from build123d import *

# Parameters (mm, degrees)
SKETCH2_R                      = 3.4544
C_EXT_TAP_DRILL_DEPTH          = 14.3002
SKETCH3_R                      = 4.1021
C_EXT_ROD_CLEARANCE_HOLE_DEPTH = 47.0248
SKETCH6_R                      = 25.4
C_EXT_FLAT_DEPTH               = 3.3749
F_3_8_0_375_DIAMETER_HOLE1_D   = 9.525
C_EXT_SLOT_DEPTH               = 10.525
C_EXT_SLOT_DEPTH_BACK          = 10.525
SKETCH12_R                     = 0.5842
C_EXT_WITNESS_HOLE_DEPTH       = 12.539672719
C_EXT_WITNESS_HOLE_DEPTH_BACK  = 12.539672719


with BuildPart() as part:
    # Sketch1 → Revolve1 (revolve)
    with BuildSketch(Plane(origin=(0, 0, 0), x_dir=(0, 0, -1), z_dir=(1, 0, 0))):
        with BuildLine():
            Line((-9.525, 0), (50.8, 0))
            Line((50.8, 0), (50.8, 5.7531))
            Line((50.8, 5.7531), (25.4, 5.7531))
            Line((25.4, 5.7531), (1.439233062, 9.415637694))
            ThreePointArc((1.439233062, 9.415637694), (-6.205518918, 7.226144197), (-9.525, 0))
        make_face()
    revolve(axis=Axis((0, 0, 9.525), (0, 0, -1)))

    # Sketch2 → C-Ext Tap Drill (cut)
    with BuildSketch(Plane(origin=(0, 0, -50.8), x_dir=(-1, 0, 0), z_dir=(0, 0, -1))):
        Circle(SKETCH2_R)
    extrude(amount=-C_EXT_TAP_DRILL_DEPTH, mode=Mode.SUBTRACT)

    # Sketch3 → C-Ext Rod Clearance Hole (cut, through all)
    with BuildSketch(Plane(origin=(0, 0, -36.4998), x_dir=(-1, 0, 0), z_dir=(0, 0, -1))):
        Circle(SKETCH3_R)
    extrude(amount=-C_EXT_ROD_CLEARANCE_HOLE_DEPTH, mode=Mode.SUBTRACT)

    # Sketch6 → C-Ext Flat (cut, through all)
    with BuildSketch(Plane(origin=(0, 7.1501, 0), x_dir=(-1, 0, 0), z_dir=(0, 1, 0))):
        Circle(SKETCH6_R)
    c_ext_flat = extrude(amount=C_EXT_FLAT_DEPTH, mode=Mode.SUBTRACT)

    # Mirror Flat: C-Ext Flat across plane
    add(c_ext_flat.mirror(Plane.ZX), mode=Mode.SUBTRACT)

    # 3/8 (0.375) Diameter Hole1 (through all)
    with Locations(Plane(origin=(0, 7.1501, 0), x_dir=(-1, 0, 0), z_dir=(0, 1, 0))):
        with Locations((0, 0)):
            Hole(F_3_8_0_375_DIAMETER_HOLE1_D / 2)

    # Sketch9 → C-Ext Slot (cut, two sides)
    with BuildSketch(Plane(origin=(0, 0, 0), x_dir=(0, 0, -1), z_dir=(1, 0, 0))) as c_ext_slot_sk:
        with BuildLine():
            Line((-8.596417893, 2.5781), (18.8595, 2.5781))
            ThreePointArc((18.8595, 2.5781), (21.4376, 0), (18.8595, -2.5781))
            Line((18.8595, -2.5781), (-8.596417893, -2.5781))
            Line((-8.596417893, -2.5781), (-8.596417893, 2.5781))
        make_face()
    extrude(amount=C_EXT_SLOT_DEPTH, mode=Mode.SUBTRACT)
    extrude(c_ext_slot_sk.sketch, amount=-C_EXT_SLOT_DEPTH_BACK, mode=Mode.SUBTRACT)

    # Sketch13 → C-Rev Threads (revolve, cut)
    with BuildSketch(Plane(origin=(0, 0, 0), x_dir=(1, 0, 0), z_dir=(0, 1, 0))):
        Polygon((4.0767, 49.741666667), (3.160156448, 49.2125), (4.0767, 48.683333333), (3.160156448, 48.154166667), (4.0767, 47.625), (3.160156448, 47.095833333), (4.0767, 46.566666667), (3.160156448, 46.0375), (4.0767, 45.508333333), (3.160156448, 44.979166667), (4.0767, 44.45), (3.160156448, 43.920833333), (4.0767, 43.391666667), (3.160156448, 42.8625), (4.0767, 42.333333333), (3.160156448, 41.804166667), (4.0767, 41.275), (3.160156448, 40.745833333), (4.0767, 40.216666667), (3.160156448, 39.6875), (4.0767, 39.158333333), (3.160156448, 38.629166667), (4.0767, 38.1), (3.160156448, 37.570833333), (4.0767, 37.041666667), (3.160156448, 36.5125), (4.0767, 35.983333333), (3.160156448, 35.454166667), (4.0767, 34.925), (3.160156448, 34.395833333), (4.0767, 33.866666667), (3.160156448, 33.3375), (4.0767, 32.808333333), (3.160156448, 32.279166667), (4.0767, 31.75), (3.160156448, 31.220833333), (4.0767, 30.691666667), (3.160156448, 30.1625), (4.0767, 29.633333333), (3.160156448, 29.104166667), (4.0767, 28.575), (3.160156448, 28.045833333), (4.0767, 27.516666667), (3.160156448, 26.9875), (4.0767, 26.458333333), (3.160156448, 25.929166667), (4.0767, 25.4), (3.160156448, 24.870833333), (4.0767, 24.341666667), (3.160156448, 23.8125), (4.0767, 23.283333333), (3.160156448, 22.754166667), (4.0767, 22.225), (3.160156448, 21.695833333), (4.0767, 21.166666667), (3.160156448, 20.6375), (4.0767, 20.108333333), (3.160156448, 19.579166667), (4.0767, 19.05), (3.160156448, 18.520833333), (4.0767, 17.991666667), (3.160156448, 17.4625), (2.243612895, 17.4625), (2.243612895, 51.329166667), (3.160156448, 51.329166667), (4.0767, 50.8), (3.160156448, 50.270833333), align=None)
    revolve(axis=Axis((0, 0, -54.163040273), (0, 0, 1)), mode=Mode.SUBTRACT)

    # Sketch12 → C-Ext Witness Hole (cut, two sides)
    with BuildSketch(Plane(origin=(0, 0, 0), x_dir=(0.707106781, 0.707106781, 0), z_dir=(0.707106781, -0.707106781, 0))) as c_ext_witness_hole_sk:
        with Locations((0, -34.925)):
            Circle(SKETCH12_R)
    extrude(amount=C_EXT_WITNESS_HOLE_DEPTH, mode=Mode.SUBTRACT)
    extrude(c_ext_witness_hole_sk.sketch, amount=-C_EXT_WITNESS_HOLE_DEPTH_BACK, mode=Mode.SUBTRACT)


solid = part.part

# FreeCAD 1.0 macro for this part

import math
import FreeCAD as App
import Part
import Sketcher

V = App.Vector
Q = App.Units.Quantity


def add_polygon(sketch, points):
    """Adds a closed chain of lines whose ends are joined by coincident constraints."""
    first, n = sketch.GeometryCount, len(points)
    for a, b in zip(points, points[1:] + points[:1]):
        sketch.addGeometry(Part.LineSegment(App.Vector(*a, 0), App.Vector(*b, 0)), False)
    for i in range(n):
        sketch.addConstraint(Sketcher.Constraint("Coincident", first + i, 2, first + (i + 1) % n, 1))

doc = App.newDocument("Part")
body = doc.addObject("PartDesign::Body", "Body")

sketch1 = doc.addObject("Sketcher::SketchObject", "Sketch")
body.addObject(sketch1)
sketch1.AttachmentSupport = (doc.YZ_Plane, [""])
sketch1.MapMode = "FlatFace"
sketch1.addGeometry([
    Part.LineSegment(V(0, 9.525, 0), V(0, -50.8, 0)),
    Part.LineSegment(V(0, -50.8, 0), V(5.7531, -50.8, 0)),
    Part.LineSegment(V(5.7531, -50.8, 0), V(5.7531, -25.4, 0)),
    Part.LineSegment(V(5.7531, -25.4, 0), V(9.415638, -1.439233, 0)),
    Part.ArcOfCircle(Part.Circle(V(0, 0, 0), V(0, 0, 1), 9.525), math.radians(-8.690712), math.radians(90)),
], False)
sketch1.addConstraint([
    Sketcher.Constraint("Coincident", 0, 2, 1, 1),
    Sketcher.Constraint("Coincident", 1, 2, 2, 1),
    Sketcher.Constraint("Coincident", 2, 2, 3, 1),
    Sketcher.Constraint("Tangent", 3, 2, 4, 1),
    Sketcher.Constraint("Coincident", 4, 2, 0, 1),
    Sketcher.Constraint("Vertical", 0),
    Sketcher.Constraint("Horizontal", 1),
    Sketcher.Constraint("Vertical", 2),
    Sketcher.Constraint("Coincident", 4, 3, -1, 1),
    Sketcher.Constraint("PointOnObject", 0, 2, -2),
    Sketcher.Constraint("DistanceY", 2, 1, 2, 2, Q("1 in")),
    Sketcher.Constraint("DistanceY", 0, 2, -1, 1, Q("2 in")),
    Sketcher.Constraint("Radius", 4, Q("0.375 in")),
    Sketcher.Constraint("DistanceX", 1, 1, 1, 2, Q("0.2265 in")),
])
revolution = doc.addObject("PartDesign::Revolution", "Revolution")
body.addObject(revolution)
revolution.Profile = sketch1
revolution.ReferenceAxis = (sketch1, ["V_Axis"])
revolution.Angle = 360

sketch2 = doc.addObject("Sketcher::SketchObject", "Sketch001")
body.addObject(sketch2)
sketch2.AttachmentSupport = (doc.XY_Plane, [""])
sketch2.MapMode = "FlatFace"
sketch2.AttachmentOffset = App.Placement(V(0, 0, -2 * 25.4), App.Rotation())
sketch2.addGeometry(Part.Circle(V(0, 0, 0), V(0, 0, 1), 3.4544), False)
sketch2.addConstraint([
    Sketcher.Constraint("Coincident", 0, 3, -1, 1),
    Sketcher.Constraint("Diameter", 0, Q("0.272 in")),
])
pocket1 = doc.addObject("PartDesign::Pocket", "Pocket")
body.addObject(pocket1)
pocket1.Profile = sketch2
pocket1.Length = Q("0.563 in")
pocket1.Reversed = True

sketch3 = doc.addObject("Sketcher::SketchObject", "Sketch002")
body.addObject(sketch3)
sketch3.AttachmentSupport = (doc.XY_Plane, [""])
sketch3.MapMode = "FlatFace"
sketch3.AttachmentOffset = App.Placement(V(0, 0, -1.437 * 25.4), App.Rotation())
sketch3.addGeometry(Part.Circle(V(0, 0, 0), V(0, 0, 1), 4.1021), False)
sketch3.addConstraint([
    Sketcher.Constraint("Coincident", 0, 3, -1, 1),
    Sketcher.Constraint("Diameter", 0, Q("0.323 in")),
])
pocket2 = doc.addObject("PartDesign::Pocket", "Pocket001")
body.addObject(pocket2)
pocket2.Profile = sketch3
pocket2.Type = "ThroughAll"
pocket2.Reversed = True

sketch4 = doc.addObject("Sketcher::SketchObject", "Sketch003")
body.addObject(sketch4)
sketch4.AttachmentSupport = (doc.XZ_Plane, [""])
sketch4.MapMode = "FlatFace"
sketch4.AttachmentOffset = App.Placement(V(0, 0, -0.2815 * 25.4), App.Rotation())
sketch4.addGeometry(Part.Circle(V(0, 0, 0), V(0, 0, 1), 25.4), False)
sketch4.addConstraint([
    Sketcher.Constraint("Coincident", 0, 3, -1, 1),
    Sketcher.Constraint("Diameter", 0, Q("2 in")),
])
pocket3 = doc.addObject("PartDesign::Pocket", "Pocket002")
body.addObject(pocket3)
pocket3.Profile = sketch4
pocket3.Type = "ThroughAll"
doc.recompute()

mirrored = doc.addObject("PartDesign::Mirrored", "Mirrored")
body.addObject(mirrored)
mirrored.Originals = [pocket3]
mirrored.MirrorPlane = (doc.XZ_Plane, [""])
body.Tip = mirrored

sketch5 = doc.addObject("Sketcher::SketchObject", "Sketch004")
body.addObject(sketch5)
sketch5.AttachmentSupport = (doc.XZ_Plane, [""])
sketch5.MapMode = "FlatFace"
sketch5.AttachmentOffset = App.Placement(V(0, 0, -0.2815 * 25.4), App.Rotation())
sketch5.addGeometry(Part.Circle(V(0, 0, 0), V(0, 0, 1), 4.7625), False)
sketch5.addConstraint([
    Sketcher.Constraint("Coincident", 0, 3, -1, 1),
    Sketcher.Constraint("Diameter", 0, Q("0.375 in")),
])
doc.recompute()
hole = doc.addObject("PartDesign::Hole", "Hole")
body.addObject(hole)
hole.Profile = sketch5
hole.ThreadType = "None"
hole.Diameter = Q("0.375 in")
hole.DepthType = "ThroughAll"
hole.Reversed = True

sketch6 = doc.addObject("Sketcher::SketchObject", "Sketch005")
body.addObject(sketch6)
sketch6.AttachmentSupport = (doc.YZ_Plane, [""])
sketch6.MapMode = "FlatFace"
sketch6.addGeometry([
    Part.LineSegment(V(2.5781, -18.8595, 0), V(2.5781, 8.596418, 0)),
    Part.LineSegment(V(2.5781, 8.596418, 0), V(-2.5781, 8.596418, 0)),
    Part.LineSegment(V(-2.5781, 8.596418, 0), V(-2.5781, -18.8595, 0)),
    Part.ArcOfCircle(Part.Circle(V(0, -18.8595, 0), V(0, 0, 1), 2.5781), math.radians(180), math.radians(360)),
], False)
sketch6.addConstraint([
    Sketcher.Constraint("Coincident", 0, 2, 1, 1),
    Sketcher.Constraint("Coincident", 1, 2, 2, 1),
    Sketcher.Constraint("Tangent", 2, 2, 3, 1),
    Sketcher.Constraint("Tangent", 3, 2, 0, 1),
    Sketcher.Constraint("Vertical", 0),
    Sketcher.Constraint("Horizontal", 1),
    Sketcher.Constraint("Vertical", 2),
    Sketcher.Constraint("PointOnObject", 3, 3, -2),
    Sketcher.Constraint("Radius", 3, Q("0.1015 in")),
    Sketcher.Constraint("DistanceY", 3, 3, -1, 1, Q("0.7425 in")),
    Sketcher.Constraint("DistanceY", 0, 1, 0, 2, Q("27.455918 mm")),
])
pocket4 = doc.addObject("PartDesign::Pocket", "Pocket003")
body.addObject(pocket4)
pocket4.Profile = sketch6
pocket4.Type = "ThroughAll"
pocket4.Midplane = True

sketch7 = doc.addObject("Sketcher::SketchObject", "Sketch006")
body.addObject(sketch7)
sketch7.AttachmentSupport = (doc.XZ_Plane, [""])
sketch7.MapMode = "FlatFace"
add_polygon(sketch7, [(3.160156, -49.2125), (4.0767, -49.741667), (3.160156, -50.270833), (4.0767, -50.8), (3.160156, -51.329167), (2.243613, -51.329167), (2.243613, -17.4625), (3.160156, -17.4625), (4.0767, -17.991667), (3.160156, -18.520833), (4.0767, -19.05), (3.160156, -19.579167), (4.0767, -20.108333), (3.160156, -20.6375), (4.0767, -21.166667), (3.160156, -21.695833), (4.0767, -22.225), (3.160156, -22.754167), (4.0767, -23.283333), (3.160156, -23.8125), (4.0767, -24.341667), (3.160156, -24.870833), (4.0767, -25.4), (3.160156, -25.929167), (4.0767, -26.458333), (3.160156, -26.9875), (4.0767, -27.516667), (3.160156, -28.045833), (4.0767, -28.575), (3.160156, -29.104167), (4.0767, -29.633333), (3.160156, -30.1625), (4.0767, -30.691667), (3.160156, -31.220833), (4.0767, -31.75), (3.160156, -32.279167), (4.0767, -32.808333), (3.160156, -33.3375), (4.0767, -33.866667), (3.160156, -34.395833), (4.0767, -34.925), (3.160156, -35.454167), (4.0767, -35.983333), (3.160156, -36.5125), (4.0767, -37.041667), (3.160156, -37.570833), (4.0767, -38.1), (3.160156, -38.629167), (4.0767, -39.158333), (3.160156, -39.6875), (4.0767, -40.216667), (3.160156, -40.745833), (4.0767, -41.275), (3.160156, -41.804167), (4.0767, -42.333333), (3.160156, -42.8625), (4.0767, -43.391667), (3.160156, -43.920833), (4.0767, -44.45), (3.160156, -44.979167), (4.0767, -45.508333), (3.160156, -46.0375), (4.0767, -46.566667), (3.160156, -47.095833), (4.0767, -47.625), (3.160156, -48.154167), (4.0767, -48.683333)])
sketch7.addConstraint([
    Sketcher.Constraint("Horizontal", 4),
    Sketcher.Constraint("Vertical", 5),
    Sketcher.Constraint("Horizontal", 6),
    Sketcher.Constraint("Parallel", 0, 2),
    Sketcher.Constraint("Parallel", 1, 3),
    Sketcher.Constraint("Parallel", 2, 7),
    Sketcher.Constraint("Parallel", 3, 8),
    Sketcher.Constraint("Parallel", 7, 9),
    Sketcher.Constraint("Parallel", 8, 10),
    Sketcher.Constraint("Parallel", 9, 11),
    Sketcher.Constraint("Parallel", 10, 12),
    Sketcher.Constraint("Parallel", 11, 13),
    Sketcher.Constraint("Parallel", 12, 14),
    Sketcher.Constraint("Parallel", 13, 15),
    Sketcher.Constraint("Parallel", 14, 16),
    Sketcher.Constraint("Parallel", 15, 17),
    Sketcher.Constraint("Parallel", 16, 18),
    Sketcher.Constraint("Parallel", 17, 19),
    Sketcher.Constraint("Parallel", 18, 20),
    Sketcher.Constraint("Parallel", 19, 21),
    Sketcher.Constraint("Parallel", 20, 22),
    Sketcher.Constraint("Parallel", 21, 23),
    Sketcher.Constraint("Parallel", 22, 24),
    Sketcher.Constraint("Parallel", 23, 25),
    Sketcher.Constraint("Parallel", 24, 26),
    Sketcher.Constraint("Parallel", 25, 27),
    Sketcher.Constraint("Parallel", 26, 28),
    Sketcher.Constraint("Parallel", 27, 29),
    Sketcher.Constraint("Parallel", 28, 30),
    Sketcher.Constraint("Parallel", 29, 31),
    Sketcher.Constraint("Parallel", 30, 32),
    Sketcher.Constraint("Parallel", 31, 33),
    Sketcher.Constraint("Parallel", 32, 34),
    Sketcher.Constraint("Parallel", 33, 35),
    Sketcher.Constraint("Parallel", 34, 36),
    Sketcher.Constraint("Parallel", 35, 37),
    Sketcher.Constraint("Parallel", 36, 38),
    Sketcher.Constraint("Parallel", 37, 39),
    Sketcher.Constraint("Parallel", 38, 40),
    Sketcher.Constraint("Parallel", 39, 41),
    Sketcher.Constraint("Parallel", 40, 42),
    Sketcher.Constraint("Parallel", 41, 43),
    Sketcher.Constraint("Parallel", 42, 44),
    Sketcher.Constraint("Parallel", 43, 45),
    Sketcher.Constraint("Parallel", 44, 46),
    Sketcher.Constraint("Parallel", 45, 47),
    Sketcher.Constraint("Parallel", 46, 48),
    Sketcher.Constraint("Parallel", 47, 49),
    Sketcher.Constraint("Parallel", 48, 50),
    Sketcher.Constraint("Parallel", 49, 51),
    Sketcher.Constraint("Parallel", 50, 52),
    Sketcher.Constraint("Parallel", 51, 53),
    Sketcher.Constraint("Parallel", 52, 54),
    Sketcher.Constraint("Parallel", 53, 55),
    Sketcher.Constraint("Parallel", 54, 56),
    Sketcher.Constraint("Parallel", 55, 57),
    Sketcher.Constraint("Parallel", 56, 58),
    Sketcher.Constraint("Parallel", 57, 59),
    Sketcher.Constraint("Parallel", 58, 60),
    Sketcher.Constraint("Parallel", 59, 61),
    Sketcher.Constraint("Parallel", 60, 62),
    Sketcher.Constraint("Parallel", 61, 63),
    Sketcher.Constraint("Parallel", 62, 64),
    Sketcher.Constraint("Parallel", 63, 65),
    Sketcher.Constraint("Parallel", 64, 66),
    Sketcher.Constraint("Vertical", 0, 2, 2, 2),
    Sketcher.Constraint("Vertical", 1, 2, 3, 2),
    Sketcher.Constraint("Vertical", 3, 2, 6, 2),
    Sketcher.Constraint("Vertical", 2, 2, 7, 2),
    Sketcher.Constraint("Vertical", 6, 2, 8, 2),
    Sketcher.Constraint("Vertical", 7, 2, 9, 2),
    Sketcher.Constraint("Vertical", 8, 2, 10, 2),
    Sketcher.Constraint("Vertical", 9, 2, 11, 2),
    Sketcher.Constraint("Vertical", 10, 2, 12, 2),
    Sketcher.Constraint("Vertical", 11, 2, 13, 2),
    Sketcher.Constraint("Vertical", 12, 2, 14, 2),
    Sketcher.Constraint("Vertical", 13, 2, 15, 2),
    Sketcher.Constraint("Vertical", 14, 2, 16, 2),
    Sketcher.Constraint("Vertical", 15, 2, 17, 2),
    Sketcher.Constraint("Vertical", 16, 2, 18, 2),
    Sketcher.Constraint("Vertical", 17, 2, 19, 2),
    Sketcher.Constraint("Vertical", 18, 2, 20, 2),
    Sketcher.Constraint("Vertical", 19, 2, 21, 2),
    Sketcher.Constraint("Vertical", 20, 2, 22, 2),
    Sketcher.Constraint("Vertical", 21, 2, 23, 2),
    Sketcher.Constraint("Vertical", 22, 2, 24, 2),
    Sketcher.Constraint("Vertical", 23, 2, 25, 2),
    Sketcher.Constraint("Vertical", 24, 2, 26, 2),
    Sketcher.Constraint("Vertical", 25, 2, 27, 2),
    Sketcher.Constraint("Vertical", 26, 2, 28, 2),
    Sketcher.Constraint("Vertical", 27, 2, 29, 2),
    Sketcher.Constraint("Vertical", 28, 2, 30, 2),
    Sketcher.Constraint("Vertical", 29, 2, 31, 2),
    Sketcher.Constraint("Vertical", 30, 2, 32, 2),
    Sketcher.Constraint("Vertical", 31, 2, 33, 2),
    Sketcher.Constraint("Vertical", 32, 2, 34, 2),
    Sketcher.Constraint("Vertical", 33, 2, 35, 2),
    Sketcher.Constraint("Vertical", 34, 2, 36, 2),
    Sketcher.Constraint("Vertical", 35, 2, 37, 2),
    Sketcher.Constraint("Vertical", 36, 2, 38, 2),
    Sketcher.Constraint("Vertical", 37, 2, 39, 2),
    Sketcher.Constraint("Vertical", 38, 2, 40, 2),
    Sketcher.Constraint("Vertical", 39, 2, 41, 2),
    Sketcher.Constraint("Vertical", 40, 2, 42, 2),
    Sketcher.Constraint("Vertical", 41, 2, 43, 2),
    Sketcher.Constraint("Vertical", 42, 2, 44, 2),
    Sketcher.Constraint("Vertical", 43, 2, 45, 2),
    Sketcher.Constraint("Vertical", 44, 2, 46, 2),
    Sketcher.Constraint("Vertical", 45, 2, 47, 2),
    Sketcher.Constraint("Vertical", 46, 2, 48, 2),
    Sketcher.Constraint("Vertical", 47, 2, 49, 2),
    Sketcher.Constraint("Vertical", 48, 2, 50, 2),
    Sketcher.Constraint("Vertical", 49, 2, 51, 2),
    Sketcher.Constraint("Vertical", 50, 2, 52, 2),
    Sketcher.Constraint("Vertical", 51, 2, 53, 2),
    Sketcher.Constraint("Vertical", 52, 2, 54, 2),
    Sketcher.Constraint("Vertical", 53, 2, 55, 2),
    Sketcher.Constraint("Vertical", 54, 2, 56, 2),
    Sketcher.Constraint("Vertical", 55, 2, 57, 2),
    Sketcher.Constraint("Vertical", 56, 2, 58, 2),
    Sketcher.Constraint("Vertical", 57, 2, 59, 2),
    Sketcher.Constraint("Vertical", 58, 2, 60, 2),
    Sketcher.Constraint("Vertical", 59, 2, 61, 2),
    Sketcher.Constraint("Vertical", 60, 2, 62, 2),
    Sketcher.Constraint("Vertical", 61, 2, 63, 2),
    Sketcher.Constraint("Vertical", 62, 2, 64, 2),
    Sketcher.Constraint("Vertical", 63, 2, 65, 2),
    Sketcher.Constraint("Vertical", 64, 2, 66, 2),
    Sketcher.Constraint("Equal", 0, 1),
    Sketcher.Constraint("DistanceY", 2, 2, -1, 1, Q("2 in")),
    Sketcher.Constraint("DistanceY", 21, 2, -1, 1, Q("1 in")),
    Sketcher.Constraint("Angle", 0, Q("-30 deg")),
    Sketcher.Constraint("DistanceX", -1, 1, 0, 2, Q("0.1605 in")),
    Sketcher.Constraint("DistanceX", 4, 2, 4, 1, Q("0.916544 mm")),
])
groove = doc.addObject("PartDesign::Groove", "Groove")
body.addObject(groove)
groove.Profile = sketch7
groove.ReferenceAxis = (sketch7, ["V_Axis"])
groove.Angle = 360

sketch8 = doc.addObject("Sketcher::SketchObject", "Sketch007")
body.addObject(sketch8)
sketch8.Placement = App.Placement(V(0, 0, 0), App.Rotation(V(0.707106781, 0.707106781, 0), V(0, 0, 0.999999999), V(0.707106781, -0.707106781, 0), "ZXY"))
sketch8.addGeometry(Part.Circle(V(0, -34.925, 0), V(0, 0, 1), 0.5842), False)
sketch8.addConstraint([
    Sketcher.Constraint("PointOnObject", 0, 3, -2),
    Sketcher.Constraint("Diameter", 0, Q("0.046 in")),
    Sketcher.Constraint("DistanceY", 0, 3, -1, 1, Q("1.375 in")),
])
pocket5 = doc.addObject("PartDesign::Pocket", "Pocket004")
body.addObject(pocket5)
pocket5.Profile = sketch8
pocket5.Type = "ThroughAll"
pocket5.Midplane = True

doc.recompute()
